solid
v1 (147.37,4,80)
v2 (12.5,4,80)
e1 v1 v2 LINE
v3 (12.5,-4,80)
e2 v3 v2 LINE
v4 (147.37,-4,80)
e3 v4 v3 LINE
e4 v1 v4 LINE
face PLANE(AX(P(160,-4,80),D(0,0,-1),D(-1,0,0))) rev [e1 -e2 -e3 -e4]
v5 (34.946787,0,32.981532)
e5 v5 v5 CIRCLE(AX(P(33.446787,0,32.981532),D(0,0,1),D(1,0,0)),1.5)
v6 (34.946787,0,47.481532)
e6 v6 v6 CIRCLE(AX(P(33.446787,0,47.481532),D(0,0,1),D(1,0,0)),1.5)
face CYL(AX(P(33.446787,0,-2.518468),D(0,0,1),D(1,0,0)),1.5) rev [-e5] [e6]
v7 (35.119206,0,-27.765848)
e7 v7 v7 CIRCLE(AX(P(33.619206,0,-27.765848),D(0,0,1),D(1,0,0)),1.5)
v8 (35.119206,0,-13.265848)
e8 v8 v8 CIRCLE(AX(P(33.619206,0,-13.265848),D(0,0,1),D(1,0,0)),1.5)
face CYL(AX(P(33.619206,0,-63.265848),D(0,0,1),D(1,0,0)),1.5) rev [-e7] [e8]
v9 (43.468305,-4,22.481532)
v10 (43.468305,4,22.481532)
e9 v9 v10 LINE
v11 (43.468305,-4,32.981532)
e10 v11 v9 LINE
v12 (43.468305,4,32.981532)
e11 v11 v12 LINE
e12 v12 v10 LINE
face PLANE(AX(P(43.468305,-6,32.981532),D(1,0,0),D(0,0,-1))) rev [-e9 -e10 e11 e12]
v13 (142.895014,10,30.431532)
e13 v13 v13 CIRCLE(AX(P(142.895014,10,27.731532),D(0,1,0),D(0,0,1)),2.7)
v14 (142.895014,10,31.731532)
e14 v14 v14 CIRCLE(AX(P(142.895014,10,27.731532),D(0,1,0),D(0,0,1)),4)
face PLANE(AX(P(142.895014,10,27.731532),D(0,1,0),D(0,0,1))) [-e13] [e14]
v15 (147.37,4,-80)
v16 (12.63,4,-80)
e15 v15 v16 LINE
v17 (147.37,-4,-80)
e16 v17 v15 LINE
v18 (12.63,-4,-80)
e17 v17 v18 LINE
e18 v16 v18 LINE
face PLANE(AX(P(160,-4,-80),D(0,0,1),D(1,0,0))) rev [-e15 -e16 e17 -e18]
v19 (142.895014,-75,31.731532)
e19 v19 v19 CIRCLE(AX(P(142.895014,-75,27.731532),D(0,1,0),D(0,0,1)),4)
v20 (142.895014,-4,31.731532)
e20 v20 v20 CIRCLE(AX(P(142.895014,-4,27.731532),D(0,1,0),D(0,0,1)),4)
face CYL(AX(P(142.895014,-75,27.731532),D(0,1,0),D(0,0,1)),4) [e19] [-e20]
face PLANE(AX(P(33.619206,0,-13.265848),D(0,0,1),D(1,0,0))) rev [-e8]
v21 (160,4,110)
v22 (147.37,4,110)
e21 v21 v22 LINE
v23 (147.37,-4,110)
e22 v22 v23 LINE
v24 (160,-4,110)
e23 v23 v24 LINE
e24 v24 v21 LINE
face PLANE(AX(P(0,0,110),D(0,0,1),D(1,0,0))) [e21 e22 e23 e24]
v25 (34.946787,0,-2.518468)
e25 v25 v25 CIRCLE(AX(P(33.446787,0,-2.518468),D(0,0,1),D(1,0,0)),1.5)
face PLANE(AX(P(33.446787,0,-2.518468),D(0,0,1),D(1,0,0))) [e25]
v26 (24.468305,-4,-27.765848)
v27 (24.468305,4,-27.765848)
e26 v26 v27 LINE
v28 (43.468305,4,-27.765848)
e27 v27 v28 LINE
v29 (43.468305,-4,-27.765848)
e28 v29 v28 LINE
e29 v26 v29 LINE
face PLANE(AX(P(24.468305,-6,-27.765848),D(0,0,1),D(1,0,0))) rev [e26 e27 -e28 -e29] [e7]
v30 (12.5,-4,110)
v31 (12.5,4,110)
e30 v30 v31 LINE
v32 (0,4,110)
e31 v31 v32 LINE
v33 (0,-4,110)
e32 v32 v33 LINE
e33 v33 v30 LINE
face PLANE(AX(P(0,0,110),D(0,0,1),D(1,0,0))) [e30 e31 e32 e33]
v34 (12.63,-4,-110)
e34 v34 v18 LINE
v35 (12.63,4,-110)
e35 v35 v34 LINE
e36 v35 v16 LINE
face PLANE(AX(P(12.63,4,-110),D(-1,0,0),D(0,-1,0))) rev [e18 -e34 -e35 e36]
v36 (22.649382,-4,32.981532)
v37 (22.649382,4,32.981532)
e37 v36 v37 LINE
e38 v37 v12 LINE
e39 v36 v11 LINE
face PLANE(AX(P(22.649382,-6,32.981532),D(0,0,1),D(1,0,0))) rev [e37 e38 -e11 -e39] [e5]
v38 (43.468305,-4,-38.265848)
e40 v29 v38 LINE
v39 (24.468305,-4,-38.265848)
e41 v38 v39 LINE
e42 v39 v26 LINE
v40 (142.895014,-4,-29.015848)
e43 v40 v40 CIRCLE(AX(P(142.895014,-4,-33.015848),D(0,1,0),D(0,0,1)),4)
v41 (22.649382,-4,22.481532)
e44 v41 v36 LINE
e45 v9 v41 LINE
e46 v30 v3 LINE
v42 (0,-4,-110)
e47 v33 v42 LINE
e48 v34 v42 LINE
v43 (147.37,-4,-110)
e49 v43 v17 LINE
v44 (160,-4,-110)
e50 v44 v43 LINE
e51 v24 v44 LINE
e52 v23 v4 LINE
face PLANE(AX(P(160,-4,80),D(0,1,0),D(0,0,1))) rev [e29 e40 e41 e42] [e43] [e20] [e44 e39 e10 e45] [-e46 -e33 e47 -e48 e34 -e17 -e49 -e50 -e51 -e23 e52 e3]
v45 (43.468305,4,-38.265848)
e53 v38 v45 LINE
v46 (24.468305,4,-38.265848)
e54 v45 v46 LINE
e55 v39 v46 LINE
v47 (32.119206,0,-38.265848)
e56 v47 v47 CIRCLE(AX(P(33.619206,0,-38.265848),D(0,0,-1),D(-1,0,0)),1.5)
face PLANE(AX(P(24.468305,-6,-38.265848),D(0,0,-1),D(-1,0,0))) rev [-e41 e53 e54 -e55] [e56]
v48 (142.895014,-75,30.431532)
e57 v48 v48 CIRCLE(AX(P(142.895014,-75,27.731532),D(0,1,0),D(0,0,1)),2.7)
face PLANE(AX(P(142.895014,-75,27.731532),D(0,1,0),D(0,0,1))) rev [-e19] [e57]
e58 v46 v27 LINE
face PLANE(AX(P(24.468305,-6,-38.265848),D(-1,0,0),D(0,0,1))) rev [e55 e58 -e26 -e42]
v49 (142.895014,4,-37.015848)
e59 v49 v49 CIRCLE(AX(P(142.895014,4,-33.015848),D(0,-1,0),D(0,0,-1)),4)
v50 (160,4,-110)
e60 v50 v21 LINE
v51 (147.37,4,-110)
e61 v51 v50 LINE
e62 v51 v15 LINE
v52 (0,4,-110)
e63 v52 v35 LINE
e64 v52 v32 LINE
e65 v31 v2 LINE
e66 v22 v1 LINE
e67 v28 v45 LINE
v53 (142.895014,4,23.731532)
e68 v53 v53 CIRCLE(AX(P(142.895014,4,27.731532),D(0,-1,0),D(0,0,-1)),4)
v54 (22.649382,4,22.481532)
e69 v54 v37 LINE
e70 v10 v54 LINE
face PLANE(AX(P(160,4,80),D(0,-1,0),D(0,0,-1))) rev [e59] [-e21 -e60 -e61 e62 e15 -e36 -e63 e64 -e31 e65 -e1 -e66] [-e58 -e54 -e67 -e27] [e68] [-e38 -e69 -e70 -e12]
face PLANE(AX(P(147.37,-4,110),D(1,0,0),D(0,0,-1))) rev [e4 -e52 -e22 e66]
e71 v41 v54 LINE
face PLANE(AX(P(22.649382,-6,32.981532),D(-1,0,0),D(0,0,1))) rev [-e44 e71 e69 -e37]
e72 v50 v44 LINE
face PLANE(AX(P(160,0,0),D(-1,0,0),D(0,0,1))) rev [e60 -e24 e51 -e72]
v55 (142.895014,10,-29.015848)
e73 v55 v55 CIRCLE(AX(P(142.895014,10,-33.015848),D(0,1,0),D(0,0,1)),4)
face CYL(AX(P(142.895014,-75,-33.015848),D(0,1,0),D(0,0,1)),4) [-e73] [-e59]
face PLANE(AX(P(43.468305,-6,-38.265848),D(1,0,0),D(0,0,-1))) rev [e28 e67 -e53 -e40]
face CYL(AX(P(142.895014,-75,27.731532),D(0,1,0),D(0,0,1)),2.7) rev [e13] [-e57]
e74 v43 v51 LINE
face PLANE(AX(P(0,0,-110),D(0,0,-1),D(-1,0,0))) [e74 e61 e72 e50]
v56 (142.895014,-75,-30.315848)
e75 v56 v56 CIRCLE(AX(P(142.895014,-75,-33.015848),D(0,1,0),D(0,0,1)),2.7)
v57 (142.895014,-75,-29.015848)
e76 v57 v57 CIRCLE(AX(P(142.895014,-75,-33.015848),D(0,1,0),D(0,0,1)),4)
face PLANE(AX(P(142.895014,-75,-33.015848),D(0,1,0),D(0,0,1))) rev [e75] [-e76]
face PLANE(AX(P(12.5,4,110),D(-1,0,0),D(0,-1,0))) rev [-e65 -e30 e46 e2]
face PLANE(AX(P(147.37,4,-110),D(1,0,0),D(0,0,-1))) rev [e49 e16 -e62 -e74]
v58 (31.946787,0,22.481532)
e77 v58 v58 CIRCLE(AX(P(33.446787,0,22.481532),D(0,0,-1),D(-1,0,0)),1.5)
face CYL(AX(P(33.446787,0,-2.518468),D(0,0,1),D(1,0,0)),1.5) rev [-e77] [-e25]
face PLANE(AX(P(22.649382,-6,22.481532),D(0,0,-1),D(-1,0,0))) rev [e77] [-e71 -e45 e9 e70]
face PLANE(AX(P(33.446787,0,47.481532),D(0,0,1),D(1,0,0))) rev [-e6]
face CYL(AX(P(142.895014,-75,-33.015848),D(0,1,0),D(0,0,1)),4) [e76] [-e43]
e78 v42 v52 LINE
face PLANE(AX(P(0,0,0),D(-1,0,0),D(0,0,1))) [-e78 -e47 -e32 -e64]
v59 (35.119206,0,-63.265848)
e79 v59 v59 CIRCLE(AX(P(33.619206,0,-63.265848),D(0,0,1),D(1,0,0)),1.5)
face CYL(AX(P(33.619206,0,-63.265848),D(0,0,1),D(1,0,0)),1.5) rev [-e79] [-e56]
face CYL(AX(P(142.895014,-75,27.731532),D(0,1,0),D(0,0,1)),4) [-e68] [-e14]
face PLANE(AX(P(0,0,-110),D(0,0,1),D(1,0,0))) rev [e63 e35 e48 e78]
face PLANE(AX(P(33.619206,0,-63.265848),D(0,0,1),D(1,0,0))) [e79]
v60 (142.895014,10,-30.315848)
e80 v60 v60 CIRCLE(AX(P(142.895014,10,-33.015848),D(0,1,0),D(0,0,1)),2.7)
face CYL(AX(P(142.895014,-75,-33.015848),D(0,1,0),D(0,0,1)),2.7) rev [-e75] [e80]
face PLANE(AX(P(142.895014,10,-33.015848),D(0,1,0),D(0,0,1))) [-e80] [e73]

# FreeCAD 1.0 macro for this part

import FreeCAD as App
import Part
import Sketcher

V = App.Vector

doc = App.newDocument("Part")
params = doc.addObject("Spreadsheet::Sheet", "Params")
for row, (alias, value) in enumerate([
    ("sketch1_width", "8 mm"),
    ("sketch1_height", "160 mm"),
    ("pad1_length", "160 mm"),
    ("sketch2_height", "8 mm"),
    ("sketch2_width", "12.5 mm"),
    ("pad2_length", "30 mm"),
    ("sketch3_height", "8 mm"),
    ("sketch3_width", "12.63 mm"),
    ("pad3_length", "30 mm"),
    ("sketch4_height", "8 mm"),
    ("sketch4_width", "12.63 mm"),
    ("pad4_length", "30 mm"),
    ("sketch5_height", "8 mm"),
    ("sketch5_width", "12.63 mm"),
    ("pad5_length", "30 mm"),
    ("sketch6_width", "19 mm"),
    ("sketch6_height", "10.5 mm"),
    ("pocket1_length", "10 mm"),
    ("sketch7_diameter", "3 mm"),
    ("pocket2_length", "50 mm"),
    ("sketch8_diameter", "3 mm"),
    ("pocket3_length", "50 mm"),
    ("sketch9_diameter", "8 mm"),
    ("pad6_length", "85 mm"),
    ("sketch10_diameter", "5.4 mm"),
    ("pocket4_length", "85 mm"),
    ("sketch11_diameter", "5.4 mm"),
    ("pocket5_length", "85 mm"),
], start=1):
    params.set(f"A{row}", alias)
    params.set(f"B{row}", "=" + value)
    params.setAlias(f"B{row}", alias)

body = doc.addObject("PartDesign::Body", "Body")

# Sketch on YZ plane
sketch1 = body.newObject("Sketcher::SketchObject", "Sketch")
sketch1.AttachmentSupport = (doc.getObject("YZ_Plane"), [""])
sketch1.MapMode = "FlatFace"
sketch1.addGeometry(Part.LineSegment(V(4, 80, 0), V(-4, 80, 0)), False)
sketch1.addGeometry(Part.LineSegment(V(-4, 80, 0), V(-4, -80, 0)), False)
sketch1.addGeometry(Part.LineSegment(V(-4, -80, 0), V(4, -80, 0)), False)
sketch1.addGeometry(Part.LineSegment(V(4, -80, 0), V(4, 80, 0)), False)
sketch1.addConstraint(Sketcher.Constraint("Coincident", 0, 2, 1, 1))
sketch1.addConstraint(Sketcher.Constraint("Coincident", 1, 2, 2, 1))
sketch1.addConstraint(Sketcher.Constraint("Coincident", 2, 2, 3, 1))
sketch1.addConstraint(Sketcher.Constraint("Coincident", 3, 2, 0, 1))
sketch1.addConstraint(Sketcher.Constraint("Horizontal", 0))
sketch1.addConstraint(Sketcher.Constraint("Vertical", 1))
sketch1.addConstraint(Sketcher.Constraint("Horizontal", 2))
sketch1.addConstraint(Sketcher.Constraint("Vertical", 3))
sketch1.addConstraint(Sketcher.Constraint("Symmetric", 0, 2, 2, 2, -1, 1))
sketch1.addConstraint(Sketcher.Constraint("DistanceX", 0, 2, 0, 1, 8.0))
sketch1.addConstraint(Sketcher.Constraint("DistanceY", 1, 2, 1, 1, 160.0))
sketch1.setExpression("Constraints[9]", "Params.sketch1_width")
sketch1.setExpression("Constraints[10]", "Params.sketch1_height")
pad1 = body.newObject("PartDesign::Pad", "Pad")
pad1.Profile = sketch1
pad1.setExpression("Length", "Params.pad1_length")

# Sketch on XY plane
sketch2 = body.newObject("Sketcher::SketchObject", "Sketch001")
sketch2.AttachmentSupport = (doc.getObject("XY_Plane"), [""])
sketch2.MapMode = "FlatFace"
sketch2.AttachmentOffset = App.Placement(V(0, 0, 80), App.Rotation())
sketch2.addGeometry(Part.LineSegment(V(0, 4, 0), V(0, -4, 0)), False)
sketch2.addGeometry(Part.LineSegment(V(0, -4, 0), V(12, -4, 0)), False)
sketch2.addGeometry(Part.LineSegment(V(12, -4, 0), V(12, 4, 0)), False)
sketch2.addGeometry(Part.LineSegment(V(12, 4, 0), V(0, 4, 0)), False)
sketch2.addConstraint(Sketcher.Constraint("Coincident", 0, 2, 1, 1))
sketch2.addConstraint(Sketcher.Constraint("Coincident", 1, 2, 2, 1))
sketch2.addConstraint(Sketcher.Constraint("Coincident", 2, 2, 3, 1))
sketch2.addConstraint(Sketcher.Constraint("Coincident", 3, 2, 0, 1))
sketch2.addConstraint(Sketcher.Constraint("Vertical", 0))
sketch2.addConstraint(Sketcher.Constraint("Horizontal", 1))
sketch2.addConstraint(Sketcher.Constraint("Vertical", 2))
sketch2.addConstraint(Sketcher.Constraint("Horizontal", 3))
sketch2.addConstraint(Sketcher.Constraint("Symmetric", 0, 2, 3, 2, -1, 1))
sketch2.addConstraint(Sketcher.Constraint("DistanceY", 0, 2, 0, 1, 8.0))
sketch2.addConstraint(Sketcher.Constraint("DistanceX", 1, 1, 1, 2, 12.5))
sketch2.setExpression("Constraints[9]", "Params.sketch2_height")
sketch2.setExpression("Constraints[10]", "Params.sketch2_width")
pad2 = body.newObject("PartDesign::Pad", "Pad001")
pad2.Profile = sketch2
pad2.setExpression("Length", "Params.pad2_length")

# Sketch on XY plane
sketch3 = body.newObject("Sketcher::SketchObject", "Sketch002")
sketch3.AttachmentSupport = (doc.getObject("XY_Plane"), [""])
sketch3.MapMode = "FlatFace"
sketch3.AttachmentOffset = App.Placement(V(0, 0, 80), App.Rotation())
sketch3.addGeometry(Part.LineSegment(V(147, 4, 0), V(147, -4, 0)), False)
sketch3.addGeometry(Part.LineSegment(V(147, -4, 0), V(160, -4, 0)), False)
sketch3.addGeometry(Part.LineSegment(V(160, -4, 0), V(160, 4, 0)), False)
sketch3.addGeometry(Part.LineSegment(V(160, 4, 0), V(147, 4, 0)), False)
sketch3.addConstraint(Sketcher.Constraint("Coincident", 0, 2, 1, 1))
sketch3.addConstraint(Sketcher.Constraint("Coincident", 1, 2, 2, 1))
sketch3.addConstraint(Sketcher.Constraint("Coincident", 2, 2, 3, 1))
sketch3.addConstraint(Sketcher.Constraint("Coincident", 3, 2, 0, 1))
sketch3.addConstraint(Sketcher.Constraint("Vertical", 0))
sketch3.addConstraint(Sketcher.Constraint("Horizontal", 1))
sketch3.addConstraint(Sketcher.Constraint("Vertical", 2))
sketch3.addConstraint(Sketcher.Constraint("Horizontal", 3))
sketch3.addConstraint(Sketcher.Constraint("DistanceY", 0, 2, 0, 1, 8.0))
sketch3.addConstraint(Sketcher.Constraint("DistanceY", 0, 2, -1, 1, 4.0))
sketch3.addConstraint(Sketcher.Constraint("DistanceX", -1, 1, 1, 2, 160.0))
sketch3.addConstraint(Sketcher.Constraint("DistanceX", 1, 1, 1, 2, 12.63))
sketch3.setExpression("Constraints[8]", "Params.sketch3_height")
sketch3.setExpression("Constraints[11]", "Params.sketch3_width")
pad3 = body.newObject("PartDesign::Pad", "Pad002")
pad3.Profile = sketch3
pad3.setExpression("Length", "Params.pad3_length")

# Sketch on XY plane
sketch4 = body.newObject("Sketcher::SketchObject", "Sketch003")
sketch4.AttachmentSupport = (doc.getObject("XY_Plane"), [""])
sketch4.MapMode = "FlatFace"
sketch4.AttachmentOffset = App.Placement(V(0, 0, -80), App.Rotation())
sketch4.addGeometry(Part.LineSegment(V(160, 4, 0), V(160, -4, 0)), False)
sketch4.addGeometry(Part.LineSegment(V(160, -4, 0), V(147, -4, 0)), False)
sketch4.addGeometry(Part.LineSegment(V(147, -4, 0), V(147, 4, 0)), False)
sketch4.addGeometry(Part.LineSegment(V(147, 4, 0), V(160, 4, 0)), False)
sketch4.addConstraint(Sketcher.Constraint("Coincident", 0, 2, 1, 1))
sketch4.addConstraint(Sketcher.Constraint("Coincident", 1, 2, 2, 1))
sketch4.addConstraint(Sketcher.Constraint("Coincident", 2, 2, 3, 1))
sketch4.addConstraint(Sketcher.Constraint("Coincident", 3, 2, 0, 1))
sketch4.addConstraint(Sketcher.Constraint("Vertical", 0))
sketch4.addConstraint(Sketcher.Constraint("Horizontal", 1))
sketch4.addConstraint(Sketcher.Constraint("Vertical", 2))
sketch4.addConstraint(Sketcher.Constraint("Horizontal", 3))
sketch4.addConstraint(Sketcher.Constraint("DistanceY", 0, 2, 0, 1, 8.0))
sketch4.addConstraint(Sketcher.Constraint("DistanceX", -1, 1, 0, 2, 160.0))
sketch4.addConstraint(Sketcher.Constraint("DistanceY", 0, 2, -1, 1, 4.0))
sketch4.addConstraint(Sketcher.Constraint("DistanceX", 1, 2, 1, 1, 12.63))
sketch4.setExpression("Constraints[8]", "Params.sketch4_height")
sketch4.setExpression("Constraints[11]", "Params.sketch4_width")
pad4 = body.newObject("PartDesign::Pad", "Pad003")
pad4.Profile = sketch4
pad4.setExpression("Length", "Params.pad4_length")
pad4.Reversed = True

# Sketch on XY plane
sketch5 = body.newObject("Sketcher::SketchObject", "Sketch004")
sketch5.AttachmentSupport = (doc.getObject("XY_Plane"), [""])
sketch5.MapMode = "FlatFace"
sketch5.AttachmentOffset = App.Placement(V(0, 0, -80), App.Rotation())
sketch5.addGeometry(Part.LineSegment(V(13, 4, 0), V(13, -4, 0)), False)
sketch5.addGeometry(Part.LineSegment(V(13, -4, 0), V(0, -4, 0)), False)
sketch5.addGeometry(Part.LineSegment(V(0, -4, 0), V(0, 4, 0)), False)
sketch5.addGeometry(Part.LineSegment(V(0, 4, 0), V(13, 4, 0)), False)
sketch5.addConstraint(Sketcher.Constraint("Coincident", 0, 2, 1, 1))
sketch5.addConstraint(Sketcher.Constraint("Coincident", 1, 2, 2, 1))
sketch5.addConstraint(Sketcher.Constraint("Coincident", 2, 2, 3, 1))
sketch5.addConstraint(Sketcher.Constraint("Coincident", 3, 2, 0, 1))
sketch5.addConstraint(Sketcher.Constraint("Vertical", 0))
sketch5.addConstraint(Sketcher.Constraint("Horizontal", 1))
sketch5.addConstraint(Sketcher.Constraint("Vertical", 2))
sketch5.addConstraint(Sketcher.Constraint("Horizontal", 3))
sketch5.addConstraint(Sketcher.Constraint("Symmetric", 1, 2, 2, 2, -1, 1))
sketch5.addConstraint(Sketcher.Constraint("DistanceY", 0, 2, 0, 1, 8.0))
sketch5.addConstraint(Sketcher.Constraint("DistanceX", 1, 2, 1, 1, 12.63))
sketch5.setExpression("Constraints[9]", "Params.sketch5_height")
sketch5.setExpression("Constraints[10]", "Params.sketch5_width")
pad5 = body.newObject("PartDesign::Pad", "Pad004")
pad5.Profile = sketch5
pad5.setExpression("Length", "Params.pad5_length")
pad5.Reversed = True

# Sketch on XZ plane
sketch6 = body.newObject("Sketcher::SketchObject", "Sketch005")
sketch6.AttachmentSupport = (doc.getObject("XZ_Plane"), [""])
sketch6.MapMode = "FlatFace"
sketch6.AttachmentOffset = App.Placement(V(0, 0, -4), App.Rotation())
sketch6.addGeometry(Part.LineSegment(V(24, -38, 0), V(24, -28, 0)), False)
sketch6.addGeometry(Part.LineSegment(V(24, -28, 0), V(43, -28, 0)), False)
sketch6.addGeometry(Part.LineSegment(V(43, -28, 0), V(43, -38, 0)), False)
sketch6.addGeometry(Part.LineSegment(V(43, -38, 0), V(24, -38, 0)), False)
sketch6.addGeometry(Part.LineSegment(V(23, 22, 0), V(23, 33, 0)), False)
sketch6.addGeometry(Part.LineSegment(V(23, 33, 0), V(43, 33, 0)), False)
sketch6.addGeometry(Part.LineSegment(V(43, 33, 0), V(43, 22, 0)), False)
sketch6.addGeometry(Part.LineSegment(V(43, 22, 0), V(23, 22, 0)), False)
sketch6.addConstraint(Sketcher.Constraint("Coincident", 0, 2, 1, 1))
sketch6.addConstraint(Sketcher.Constraint("Coincident", 1, 2, 2, 1))
sketch6.addConstraint(Sketcher.Constraint("Coincident", 2, 2, 3, 1))
sketch6.addConstraint(Sketcher.Constraint("Coincident", 3, 2, 0, 1))
sketch6.addConstraint(Sketcher.Constraint("Coincident", 4, 2, 5, 1))
sketch6.addConstraint(Sketcher.Constraint("Coincident", 5, 2, 6, 1))
sketch6.addConstraint(Sketcher.Constraint("Coincident", 6, 2, 7, 1))
sketch6.addConstraint(Sketcher.Constraint("Coincident", 7, 2, 4, 1))
sketch6.addConstraint(Sketcher.Constraint("Vertical", 0))
sketch6.addConstraint(Sketcher.Constraint("Horizontal", 1))
sketch6.addConstraint(Sketcher.Constraint("Vertical", 2))
sketch6.addConstraint(Sketcher.Constraint("Horizontal", 3))
sketch6.addConstraint(Sketcher.Constraint("Vertical", 4))
sketch6.addConstraint(Sketcher.Constraint("Horizontal", 5))
sketch6.addConstraint(Sketcher.Constraint("Vertical", 6))
sketch6.addConstraint(Sketcher.Constraint("Horizontal", 7))
sketch6.addConstraint(Sketcher.Constraint("Vertical", 2, 2, 5, 2))
sketch6.addConstraint(Sketcher.Constraint("Equal", 2, 4))
sketch6.addConstraint(Sketcher.Constraint("DistanceX", 1, 1, 1, 2, 19.0))
sketch6.addConstraint(Sketcher.Constraint("DistanceY", 0, 1, 0, 2, 10.5))
sketch6.addConstraint(Sketcher.Constraint("DistanceX", 5, 1, 5, 2, 20.818923))
sketch6.addConstraint(Sketcher.Constraint("DistanceX", -1, 1, 4, 2, 22.649382))
sketch6.addConstraint(Sketcher.Constraint("DistanceY", -1, 1, 4, 2, 32.981532))
sketch6.addConstraint(Sketcher.Constraint("DistanceY", 0, 2, 4, 2, 60.747379))
sketch6.setExpression("Constraints[18]", "Params.sketch6_width")
sketch6.setExpression("Constraints[19]", "Params.sketch6_height")
pocket1 = body.newObject("PartDesign::Pocket", "Pocket")
pocket1.Profile = sketch6
pocket1.setExpression("Length", "Params.pocket1_length")
pocket1.Reversed = True

# Sketch on XY plane
sketch7 = body.newObject("Sketcher::SketchObject", "Sketch006")
sketch7.AttachmentSupport = (doc.getObject("XY_Plane"), [""])
sketch7.MapMode = "FlatFace"
sketch7.AttachmentOffset = App.Placement(V(0, 0, -38.265848), App.Rotation())
sketch7.addGeometry(Part.Circle(V(33.6, 0, 0), V(0, 0, 1), 1.5), False)
sketch7.addConstraint(Sketcher.Constraint("PointOnObject", 0, 3, -1))
sketch7.addConstraint(Sketcher.Constraint("Diameter", 0, 3.0))
sketch7.addConstraint(Sketcher.Constraint("DistanceX", -1, 1, 0, 3, 33.619206))
sketch7.setExpression("Constraints[1]", "Params.sketch7_diameter")
pocket2 = body.newObject("PartDesign::Pocket", "Pocket001")
pocket2.Profile = sketch7
pocket2.setExpression("Length", "Params.pocket2_length")
pocket2.Midplane = True

# Sketch on XY plane
sketch8 = body.newObject("Sketcher::SketchObject", "Sketch007")
sketch8.AttachmentSupport = (doc.getObject("XY_Plane"), [""])
sketch8.MapMode = "FlatFace"
sketch8.AttachmentOffset = App.Placement(V(0, 0, 22.481532), App.Rotation())
sketch8.addGeometry(Part.Circle(V(33.4, 0, 0), V(0, 0, 1), 1.5), False)
sketch8.addConstraint(Sketcher.Constraint("PointOnObject", 0, 3, -1))
sketch8.addConstraint(Sketcher.Constraint("Diameter", 0, 3.0))
sketch8.addConstraint(Sketcher.Constraint("DistanceX", -1, 1, 0, 3, 33.446787))
sketch8.setExpression("Constraints[1]", "Params.sketch8_diameter")
pocket3 = body.newObject("PartDesign::Pocket", "Pocket002")
pocket3.Profile = sketch8
pocket3.setExpression("Length", "Params.pocket3_length")
pocket3.Midplane = True

# Sketch on XZ plane
sketch9 = body.newObject("Sketcher::SketchObject", "Sketch008")
sketch9.AttachmentSupport = (doc.getObject("XZ_Plane"), [""])
sketch9.MapMode = "FlatFace"
sketch9.AttachmentOffset = App.Placement(V(0, 0, -10), App.Rotation())
sketch9.addGeometry(Part.Circle(V(142.9, 27.7, 0), V(0, 0, 1), 4), False)
sketch9.addGeometry(Part.Circle(V(142.9, -33, 0), V(0, 0, 1), 4), False)
sketch9.addConstraint(Sketcher.Constraint("Equal", 0, 1))
sketch9.addConstraint(Sketcher.Constraint("Vertical", 0, 3, 1, 3))
sketch9.addConstraint(Sketcher.Constraint("Diameter", 0, 8.0))
sketch9.addConstraint(Sketcher.Constraint("DistanceY", -1, 1, 0, 3, 27.731532))
sketch9.addConstraint(Sketcher.Constraint("DistanceY", 1, 3, 0, 3, 60.747379))
sketch9.addConstraint(Sketcher.Constraint("DistanceX", -1, 1, 0, 3, 142.895014))
sketch9.setExpression("Constraints[2]", "Params.sketch9_diameter")
pad6 = body.newObject("PartDesign::Pad", "Pad005")
pad6.Profile = sketch9
pad6.setExpression("Length", "Params.pad6_length")

# Sketch on XZ plane
sketch10 = body.newObject("Sketcher::SketchObject", "Sketch009")
sketch10.AttachmentSupport = (doc.getObject("XZ_Plane"), [""])
sketch10.MapMode = "FlatFace"
sketch10.AttachmentOffset = App.Placement(V(0, 0, -10), App.Rotation())
sketch10.addGeometry(Part.Circle(V(142.9, 27.7, 0), V(0, 0, 1), 2.7), False)
sketch10.addConstraint(Sketcher.Constraint("Diameter", 0, 5.4))
sketch10.addConstraint(Sketcher.Constraint("DistanceY", -1, 1, 0, 3, 27.731532))
sketch10.addConstraint(Sketcher.Constraint("DistanceX", -1, 1, 0, 3, 142.895014))
sketch10.setExpression("Constraints[0]", "Params.sketch10_diameter")
pocket4 = body.newObject("PartDesign::Pocket", "Pocket003")
pocket4.Profile = sketch10
pocket4.setExpression("Length", "Params.pocket4_length")
pocket4.Reversed = True

# Sketch on XZ plane
sketch11 = body.newObject("Sketcher::SketchObject", "Sketch010")
sketch11.AttachmentSupport = (doc.getObject("XZ_Plane"), [""])
sketch11.MapMode = "FlatFace"
sketch11.AttachmentOffset = App.Placement(V(0, 0, -10), App.Rotation())
sketch11.addGeometry(Part.Circle(V(142.9, -33, 0), V(0, 0, 1), 2.7), False)
sketch11.addConstraint(Sketcher.Constraint("Diameter", 0, 5.4))
sketch11.addConstraint(Sketcher.Constraint("DistanceX", -1, 1, 0, 3, 142.895014))
sketch11.addConstraint(Sketcher.Constraint("DistanceY", 0, 3, -1, 1, 33.015848))
sketch11.setExpression("Constraints[0]", "Params.sketch11_diameter")
pocket5 = body.newObject("PartDesign::Pocket", "Pocket004")
pocket5.Profile = sketch11
pocket5.setExpression("Length", "Params.pocket5_length")
pocket5.Reversed = True

doc.recompute()
